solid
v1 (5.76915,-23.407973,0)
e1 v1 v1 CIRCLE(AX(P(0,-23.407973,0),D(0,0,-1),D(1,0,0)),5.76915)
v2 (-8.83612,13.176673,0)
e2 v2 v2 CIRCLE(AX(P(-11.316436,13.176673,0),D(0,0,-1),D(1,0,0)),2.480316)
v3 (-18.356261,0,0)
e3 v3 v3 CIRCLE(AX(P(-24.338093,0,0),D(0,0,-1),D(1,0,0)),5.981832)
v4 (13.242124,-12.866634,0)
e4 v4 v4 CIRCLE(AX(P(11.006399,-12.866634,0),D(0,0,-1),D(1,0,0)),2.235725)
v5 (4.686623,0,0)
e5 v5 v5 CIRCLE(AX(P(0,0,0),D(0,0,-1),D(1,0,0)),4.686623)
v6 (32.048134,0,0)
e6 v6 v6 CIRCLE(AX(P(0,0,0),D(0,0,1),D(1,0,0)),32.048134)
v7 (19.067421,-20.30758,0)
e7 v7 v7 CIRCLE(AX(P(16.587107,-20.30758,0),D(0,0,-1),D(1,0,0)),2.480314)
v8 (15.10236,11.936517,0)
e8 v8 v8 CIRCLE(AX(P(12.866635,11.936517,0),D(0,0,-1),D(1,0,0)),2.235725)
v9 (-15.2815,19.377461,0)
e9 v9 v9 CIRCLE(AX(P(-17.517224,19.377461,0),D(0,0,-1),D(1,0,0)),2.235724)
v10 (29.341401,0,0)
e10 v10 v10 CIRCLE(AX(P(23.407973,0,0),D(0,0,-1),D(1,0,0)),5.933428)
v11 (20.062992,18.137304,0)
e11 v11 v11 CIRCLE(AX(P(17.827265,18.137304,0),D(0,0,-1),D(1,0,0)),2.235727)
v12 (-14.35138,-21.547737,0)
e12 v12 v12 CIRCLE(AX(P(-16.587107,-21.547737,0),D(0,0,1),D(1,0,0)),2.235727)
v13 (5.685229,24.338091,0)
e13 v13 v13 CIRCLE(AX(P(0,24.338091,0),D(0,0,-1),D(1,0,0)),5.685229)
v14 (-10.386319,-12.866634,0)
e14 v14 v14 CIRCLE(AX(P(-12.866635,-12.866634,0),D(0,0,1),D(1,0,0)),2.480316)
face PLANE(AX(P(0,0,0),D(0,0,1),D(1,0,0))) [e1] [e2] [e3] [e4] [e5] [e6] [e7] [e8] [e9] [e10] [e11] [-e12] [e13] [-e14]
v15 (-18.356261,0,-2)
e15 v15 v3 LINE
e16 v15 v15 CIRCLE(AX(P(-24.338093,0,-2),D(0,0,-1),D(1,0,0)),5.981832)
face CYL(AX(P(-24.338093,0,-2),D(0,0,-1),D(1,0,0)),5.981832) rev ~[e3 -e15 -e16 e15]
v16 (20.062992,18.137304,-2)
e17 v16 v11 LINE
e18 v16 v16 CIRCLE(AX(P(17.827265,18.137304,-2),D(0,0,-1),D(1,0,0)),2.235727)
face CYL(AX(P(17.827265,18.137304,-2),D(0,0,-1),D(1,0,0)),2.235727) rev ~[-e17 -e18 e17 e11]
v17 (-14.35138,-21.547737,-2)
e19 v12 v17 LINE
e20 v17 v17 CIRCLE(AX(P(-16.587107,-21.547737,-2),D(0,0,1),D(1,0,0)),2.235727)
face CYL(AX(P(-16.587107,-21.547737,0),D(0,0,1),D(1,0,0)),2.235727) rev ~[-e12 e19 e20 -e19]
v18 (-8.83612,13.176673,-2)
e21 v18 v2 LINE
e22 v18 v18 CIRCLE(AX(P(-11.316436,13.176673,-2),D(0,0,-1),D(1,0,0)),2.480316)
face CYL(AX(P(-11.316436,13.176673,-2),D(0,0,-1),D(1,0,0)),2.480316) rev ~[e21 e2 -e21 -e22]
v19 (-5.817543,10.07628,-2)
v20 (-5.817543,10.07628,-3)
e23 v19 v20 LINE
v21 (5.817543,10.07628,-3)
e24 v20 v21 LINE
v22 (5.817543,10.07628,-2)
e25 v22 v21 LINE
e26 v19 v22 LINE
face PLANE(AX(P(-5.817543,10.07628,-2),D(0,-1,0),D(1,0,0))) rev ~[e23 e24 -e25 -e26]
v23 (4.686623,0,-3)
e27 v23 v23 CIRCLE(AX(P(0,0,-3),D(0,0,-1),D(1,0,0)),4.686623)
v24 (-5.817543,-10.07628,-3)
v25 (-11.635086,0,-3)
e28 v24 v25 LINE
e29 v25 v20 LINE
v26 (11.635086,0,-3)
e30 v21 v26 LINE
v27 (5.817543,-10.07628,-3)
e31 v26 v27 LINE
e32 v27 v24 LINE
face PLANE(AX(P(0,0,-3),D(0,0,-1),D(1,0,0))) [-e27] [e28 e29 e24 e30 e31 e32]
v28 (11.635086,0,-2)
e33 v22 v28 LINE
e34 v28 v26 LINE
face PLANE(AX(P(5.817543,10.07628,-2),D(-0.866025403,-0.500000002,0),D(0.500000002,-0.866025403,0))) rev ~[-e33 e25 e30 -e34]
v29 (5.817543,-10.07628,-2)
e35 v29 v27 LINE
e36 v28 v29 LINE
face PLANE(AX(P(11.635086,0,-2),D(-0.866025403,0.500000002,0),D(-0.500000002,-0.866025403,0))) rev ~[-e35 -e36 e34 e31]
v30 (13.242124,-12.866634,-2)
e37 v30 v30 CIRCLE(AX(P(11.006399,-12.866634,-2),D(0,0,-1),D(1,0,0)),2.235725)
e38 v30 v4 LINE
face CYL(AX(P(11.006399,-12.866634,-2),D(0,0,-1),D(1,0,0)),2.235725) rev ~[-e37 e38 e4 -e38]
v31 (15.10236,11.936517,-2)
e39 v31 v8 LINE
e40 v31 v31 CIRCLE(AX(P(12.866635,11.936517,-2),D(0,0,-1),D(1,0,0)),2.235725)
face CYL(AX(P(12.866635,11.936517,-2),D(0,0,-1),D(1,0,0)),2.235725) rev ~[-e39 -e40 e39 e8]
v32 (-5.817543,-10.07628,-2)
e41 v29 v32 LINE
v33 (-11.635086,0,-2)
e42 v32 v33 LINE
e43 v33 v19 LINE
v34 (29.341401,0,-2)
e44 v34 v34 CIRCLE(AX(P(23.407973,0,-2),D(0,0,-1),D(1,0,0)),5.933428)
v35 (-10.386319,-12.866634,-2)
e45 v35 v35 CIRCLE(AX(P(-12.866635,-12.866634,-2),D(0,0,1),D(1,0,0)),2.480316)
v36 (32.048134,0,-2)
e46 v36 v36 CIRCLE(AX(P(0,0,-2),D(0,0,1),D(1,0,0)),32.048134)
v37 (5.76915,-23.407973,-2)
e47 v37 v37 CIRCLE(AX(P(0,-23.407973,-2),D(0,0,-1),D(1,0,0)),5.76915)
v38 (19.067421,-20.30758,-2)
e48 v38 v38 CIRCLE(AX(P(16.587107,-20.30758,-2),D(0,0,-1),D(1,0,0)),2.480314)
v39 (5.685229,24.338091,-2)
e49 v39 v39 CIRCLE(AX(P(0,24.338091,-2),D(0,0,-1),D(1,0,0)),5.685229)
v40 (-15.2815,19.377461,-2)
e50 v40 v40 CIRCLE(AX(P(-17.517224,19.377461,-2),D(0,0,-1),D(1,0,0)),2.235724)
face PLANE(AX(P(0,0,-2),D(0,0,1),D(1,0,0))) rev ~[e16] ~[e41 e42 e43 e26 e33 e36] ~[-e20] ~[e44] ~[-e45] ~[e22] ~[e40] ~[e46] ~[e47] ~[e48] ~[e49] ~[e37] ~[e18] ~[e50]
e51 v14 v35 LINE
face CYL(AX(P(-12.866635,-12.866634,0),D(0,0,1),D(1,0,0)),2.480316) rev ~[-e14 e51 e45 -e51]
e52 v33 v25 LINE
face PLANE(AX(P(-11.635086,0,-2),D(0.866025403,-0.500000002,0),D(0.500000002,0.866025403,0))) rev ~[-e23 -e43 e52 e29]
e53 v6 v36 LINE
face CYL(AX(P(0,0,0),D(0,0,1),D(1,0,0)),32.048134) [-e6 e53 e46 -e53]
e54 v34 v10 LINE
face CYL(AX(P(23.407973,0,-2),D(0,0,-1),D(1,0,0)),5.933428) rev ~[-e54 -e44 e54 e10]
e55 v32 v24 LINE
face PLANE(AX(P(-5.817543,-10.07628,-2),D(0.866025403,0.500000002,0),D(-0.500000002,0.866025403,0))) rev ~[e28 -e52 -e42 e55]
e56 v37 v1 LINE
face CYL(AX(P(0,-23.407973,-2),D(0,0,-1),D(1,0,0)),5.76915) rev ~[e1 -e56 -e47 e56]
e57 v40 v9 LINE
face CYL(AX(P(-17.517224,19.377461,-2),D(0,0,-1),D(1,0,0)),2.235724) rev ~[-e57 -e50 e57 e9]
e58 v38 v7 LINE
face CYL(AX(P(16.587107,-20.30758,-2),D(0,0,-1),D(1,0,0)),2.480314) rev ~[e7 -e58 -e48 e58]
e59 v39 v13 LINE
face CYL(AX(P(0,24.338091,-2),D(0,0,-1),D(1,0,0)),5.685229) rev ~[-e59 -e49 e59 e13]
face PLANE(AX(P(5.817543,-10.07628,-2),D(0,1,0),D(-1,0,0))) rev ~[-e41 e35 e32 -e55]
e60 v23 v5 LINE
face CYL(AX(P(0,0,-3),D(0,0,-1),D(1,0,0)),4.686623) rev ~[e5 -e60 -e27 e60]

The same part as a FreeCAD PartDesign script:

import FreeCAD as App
import Part
import Sketcher
Q = App.Units.Quantity

doc = App.newDocument("Part")
body = doc.addObject("PartDesign::Body", "Body")

sketch1 = doc.addObject("Sketcher::SketchObject", "Sketch")
body.addObject(sketch1)
sketch1.AttachmentSupport = (doc.XY_Plane, [""])
sketch1.MapMode = "FlatFace"
sketch1.addGeometry(Part.Circle(App.Vector(0, 0, 0), App.Vector(0, 0, 1), 32), False)
sketch1.addConstraint(Sketcher.Constraint("Coincident", 0, 3, -1, 1))
sketch1.addConstraint(Sketcher.Constraint("Diameter", 0, 64.096268))
pad1 = doc.addObject("PartDesign::Pad", "Pad")
body.addObject(pad1)
pad1.Profile = sketch1
pad1.Length = 2
pad1.Reversed = True

sketch2 = doc.addObject("Sketcher::SketchObject", "Sketch001")
body.addObject(sketch2)
sketch2.AttachmentSupport = (doc.XY_Plane, [""])
sketch2.MapMode = "FlatFace"
sketch2.AttachmentOffset = App.Placement(App.Vector(0, 0, -2), App.Rotation())
sketch2.addGeometry(Part.Circle(App.Vector(0, 24, 0), App.Vector(0, 0, 1), 6), False)
sketch2.addConstraint(Sketcher.Constraint("PointOnObject", 0, 3, -2))
sketch2.addConstraint(Sketcher.Constraint("Diameter", 0, 11.370458))
sketch2.addConstraint(Sketcher.Constraint("DistanceY", -1, 1, 0, 3, 24.338091))
pocket1 = doc.addObject("PartDesign::Pocket", "Pocket")
body.addObject(pocket1)
pocket1.Profile = sketch2
pocket1.Length = 25
pocket1.Reversed = True

sketch3 = doc.addObject("Sketcher::SketchObject", "Sketch002")
body.addObject(sketch3)
sketch3.AttachmentSupport = (doc.XY_Plane, [""])
sketch3.MapMode = "FlatFace"
sketch3.AttachmentOffset = App.Placement(App.Vector(0, 0, -2), App.Rotation())
sketch3.addGeometry(Part.Circle(App.Vector(23, 0, 0), App.Vector(0, 0, 1), 6), False)
sketch3.addConstraint(Sketcher.Constraint("PointOnObject", 0, 3, -1))
sketch3.addConstraint(Sketcher.Constraint("Diameter", 0, 11.866856))
sketch3.addConstraint(Sketcher.Constraint("DistanceX", -1, 1, 0, 3, 23.407973))
pocket2 = doc.addObject("PartDesign::Pocket", "Pocket001")
body.addObject(pocket2)
pocket2.Profile = sketch3
pocket2.Length = 25
pocket2.Reversed = True

sketch4 = doc.addObject("Sketcher::SketchObject", "Sketch003")
body.addObject(sketch4)
sketch4.AttachmentSupport = (doc.XY_Plane, [""])
sketch4.MapMode = "FlatFace"
sketch4.AttachmentOffset = App.Placement(App.Vector(0, 0, -2), App.Rotation())
sketch4.addGeometry(Part.Circle(App.Vector(0, -23, 0), App.Vector(0, 0, 1), 6), False)
sketch4.addConstraint(Sketcher.Constraint("PointOnObject", 0, 3, -2))
sketch4.addConstraint(Sketcher.Constraint("Diameter", 0, 11.5383))
sketch4.addConstraint(Sketcher.Constraint("DistanceY", 0, 3, -1, 1, 23.407973))
pocket3 = doc.addObject("PartDesign::Pocket", "Pocket002")
body.addObject(pocket3)
pocket3.Profile = sketch4
pocket3.Length = 25
pocket3.Reversed = True

sketch5 = doc.addObject("Sketcher::SketchObject", "Sketch004")
body.addObject(sketch5)
sketch5.AttachmentSupport = (doc.XY_Plane, [""])
sketch5.MapMode = "FlatFace"
sketch5.AttachmentOffset = App.Placement(App.Vector(0, 0, -2), App.Rotation())
sketch5.addGeometry(Part.Circle(App.Vector(-24, 0, 0), App.Vector(0, 0, 1), 6), False)
sketch5.addConstraint(Sketcher.Constraint("PointOnObject", 0, 3, -1))
sketch5.addConstraint(Sketcher.Constraint("Diameter", 0, 11.963664))
sketch5.addConstraint(Sketcher.Constraint("DistanceX", 0, 3, -1, 1, 24.338093))
pocket4 = doc.addObject("PartDesign::Pocket", "Pocket003")
body.addObject(pocket4)
pocket4.Profile = sketch5
pocket4.Length = 25
pocket4.Reversed = True

sketch6 = doc.addObject("Sketcher::SketchObject", "Sketch005")
body.addObject(sketch6)
sketch6.AttachmentSupport = (doc.XY_Plane, [""])
sketch6.MapMode = "FlatFace"
sketch6.AttachmentOffset = App.Placement(App.Vector(0, 0, -2), App.Rotation())
sketch6.addGeometry(Part.LineSegment(App.Vector(-6, 10, 0), App.Vector(6, 10, 0)), False)
sketch6.addGeometry(Part.LineSegment(App.Vector(6, 10, 0), App.Vector(12, 0, 0)), False)
sketch6.addGeometry(Part.LineSegment(App.Vector(12, 0, 0), App.Vector(6, -10, 0)), False)
sketch6.addGeometry(Part.LineSegment(App.Vector(6, -10, 0), App.Vector(-6, -10, 0)), False)
sketch6.addGeometry(Part.LineSegment(App.Vector(-6, -10, 0), App.Vector(-12, 0, 0)), False)
sketch6.addGeometry(Part.LineSegment(App.Vector(-12, 0, 0), App.Vector(-6, 10, 0)), False)
sketch6.addConstraint(Sketcher.Constraint("Coincident", 0, 2, 1, 1))
sketch6.addConstraint(Sketcher.Constraint("Coincident", 1, 2, 2, 1))
sketch6.addConstraint(Sketcher.Constraint("Coincident", 2, 2, 3, 1))
sketch6.addConstraint(Sketcher.Constraint("Coincident", 3, 2, 4, 1))
sketch6.addConstraint(Sketcher.Constraint("Coincident", 4, 2, 5, 1))
sketch6.addConstraint(Sketcher.Constraint("Coincident", 5, 2, 0, 1))
sketch6.addConstraint(Sketcher.Constraint("Horizontal", 0))
sketch6.addConstraint(Sketcher.Constraint("Horizontal", 3))
sketch6.addConstraint(Sketcher.Constraint("Symmetric", 0, 2, 3, 2, -1, 1))
sketch6.addConstraint(Sketcher.Constraint("Symmetric", 1, 2, 4, 2, -1, 1))
sketch6.addConstraint(Sketcher.Constraint("PointOnObject", 1, 2, -1))
sketch6.addConstraint(Sketcher.Constraint("Parallel", 2, 5))
sketch6.addConstraint(Sketcher.Constraint("Vertical", 0, 2, 2, 2))
sketch6.addConstraint(Sketcher.Constraint("Angle", 1, Q("-60 deg")))
sketch6.addConstraint(Sketcher.Constraint("DistanceX", 0, 1, 0, 2, 11.635086))
sketch6.addConstraint(Sketcher.Constraint("DistanceY", -1, 1, 0, 2, 10.07628))
pad2 = doc.addObject("PartDesign::Pad", "Pad001")
body.addObject(pad2)
pad2.Profile = sketch6
pad2.Length = 1
pad2.Reversed = True

sketch7 = doc.addObject("Sketcher::SketchObject", "Sketch006")
body.addObject(sketch7)
sketch7.AttachmentSupport = (doc.XY_Plane, [""])
sketch7.MapMode = "FlatFace"
sketch7.AttachmentOffset = App.Placement(App.Vector(0, 0, -3), App.Rotation())
sketch7.addGeometry(Part.Circle(App.Vector(0, 0, 0), App.Vector(0, 0, 1), 4.7), False)
sketch7.addConstraint(Sketcher.Constraint("Coincident", 0, 3, -1, 1))
sketch7.addConstraint(Sketcher.Constraint("Diameter", 0, 9.373246))
pocket5 = doc.addObject("PartDesign::Pocket", "Pocket004")
body.addObject(pocket5)
pocket5.Profile = sketch7
pocket5.Length = 25
pocket5.Reversed = True

sketch8 = doc.addObject("Sketcher::SketchObject", "Sketch007")
body.addObject(sketch8)
sketch8.AttachmentSupport = (doc.XY_Plane, [""])
sketch8.MapMode = "FlatFace"
sketch8.AttachmentOffset = App.Placement(App.Vector(0, 0, -2), App.Rotation())
sketch8.addGeometry(Part.Circle(App.Vector(-11.3, 13.2, 0), App.Vector(0, 0, 1), 2.5), False)
sketch8.addGeometry(Part.Circle(App.Vector(-17.5, 19.4, 0), App.Vector(0, 0, 1), 2.2), False)
sketch8.addConstraint(Sketcher.Constraint("Diameter", 0, 4.960632))
sketch8.addConstraint(Sketcher.Constraint("Diameter", 1, 4.471448))
sketch8.addConstraint(Sketcher.Constraint("DistanceY", -1, 1, 1, 3, 19.377461))
sketch8.addConstraint(Sketcher.Constraint("DistanceY", 0, 3, 1, 3, 6.200788))
sketch8.addConstraint(Sketcher.Constraint("DistanceX", 0, 3, -1, 1, 11.316436))
sketch8.addConstraint(Sketcher.Constraint("DistanceX", 1, 3, -1, 1, 17.517224))
pocket6 = doc.addObject("PartDesign::Pocket", "Pocket005")
body.addObject(pocket6)
pocket6.Profile = sketch8
pocket6.Length = 25
pocket6.Reversed = True

sketch9 = doc.addObject("Sketcher::SketchObject", "Sketch008")
body.addObject(sketch9)
sketch9.AttachmentSupport = (doc.XY_Plane, [""])
sketch9.MapMode = "FlatFace"
sketch9.AttachmentOffset = App.Placement(App.Vector(0, 0, -2), App.Rotation())
sketch9.addGeometry(Part.Circle(App.Vector(12.9, 11.9, 0), App.Vector(0, 0, 1), 2.2), False)
sketch9.addGeometry(Part.Circle(App.Vector(17.8, 18.1, 0), App.Vector(0, 0, 1), 2.2), False)
sketch9.addConstraint(Sketcher.Constraint("Equal", 0, 1))
sketch9.addConstraint(Sketcher.Constraint("Diameter", 0, 4.47145))
sketch9.addConstraint(Sketcher.Constraint("DistanceX", 0, 3, 1, 3, 4.96063))
sketch9.addConstraint(Sketcher.Constraint("DistanceX", -1, 1, 0, 3, 12.866635))
sketch9.addConstraint(Sketcher.Constraint("DistanceY", -1, 1, 0, 3, 11.936517))
sketch9.addConstraint(Sketcher.Constraint("DistanceY", -1, 1, 1, 3, 18.137304))
pocket7 = doc.addObject("PartDesign::Pocket", "Pocket006")
body.addObject(pocket7)
pocket7.Profile = sketch9
pocket7.Length = 25
pocket7.Reversed = True

sketch10 = doc.addObject("Sketcher::SketchObject", "Sketch009")
body.addObject(sketch10)
sketch10.AttachmentSupport = (doc.XY_Plane, [""])
sketch10.MapMode = "FlatFace"
sketch10.AttachmentOffset = App.Placement(App.Vector(0, 0, -2), App.Rotation())
sketch10.addGeometry(Part.Circle(App.Vector(11, -12.9, 0), App.Vector(0, 0, 1), 2.2), False)
sketch10.addGeometry(Part.Circle(App.Vector(16.6, -20.3, 0), App.Vector(0, 0, 1), 2.5), False)
sketch10.addConstraint(Sketcher.Constraint("Diameter", 0, 4.47145))
sketch10.addConstraint(Sketcher.Constraint("Diameter", 1, 4.960628))
sketch10.addConstraint(Sketcher.Constraint("DistanceX", -1, 1, 0, 3, 11.006399))
sketch10.addConstraint(Sketcher.Constraint("DistanceY", 1, 3, -1, 1, 20.30758))
sketch10.addConstraint(Sketcher.Constraint("DistanceY", 0, 3, -1, 1, 12.866634))
sketch10.addConstraint(Sketcher.Constraint("DistanceX", -1, 1, 1, 3, 16.587107))
pocket8 = doc.addObject("PartDesign::Pocket", "Pocket007")
body.addObject(pocket8)
pocket8.Profile = sketch10
pocket8.Length = 25
pocket8.Reversed = True

sketch11 = doc.addObject("Sketcher::SketchObject", "Sketch010")
body.addObject(sketch11)
sketch11.AttachmentSupport = (doc.XY_Plane, [""])
sketch11.MapMode = "FlatFace"
sketch11.addGeometry(Part.Circle(App.Vector(-12.9, -12.9, 0), App.Vector(0, 0, 1), 2.5), False)
sketch11.addGeometry(Part.Circle(App.Vector(-16.6, -21.5, 0), App.Vector(0, 0, 1), 2.2), False)
sketch11.addConstraint(Sketcher.Constraint("Diameter", 0, 4.960632))
sketch11.addConstraint(Sketcher.Constraint("Diameter", 1, 4.471454))
sketch11.addConstraint(Sketcher.Constraint("DistanceX", 1, 3, 0, 3, 3.720472))
sketch11.addConstraint(Sketcher.Constraint("DistanceX", 0, 3, -1, 1, 12.866635))
sketch11.addConstraint(Sketcher.Constraint("DistanceY", 0, 3, -1, 1, 12.866634))
sketch11.addConstraint(Sketcher.Constraint("DistanceY", 1, 3, -1, 1, 21.547737))
pocket9 = doc.addObject("PartDesign::Pocket", "Pocket008")
body.addObject(pocket9)
pocket9.Profile = sketch11
pocket9.Length = 25

doc.recompute()
